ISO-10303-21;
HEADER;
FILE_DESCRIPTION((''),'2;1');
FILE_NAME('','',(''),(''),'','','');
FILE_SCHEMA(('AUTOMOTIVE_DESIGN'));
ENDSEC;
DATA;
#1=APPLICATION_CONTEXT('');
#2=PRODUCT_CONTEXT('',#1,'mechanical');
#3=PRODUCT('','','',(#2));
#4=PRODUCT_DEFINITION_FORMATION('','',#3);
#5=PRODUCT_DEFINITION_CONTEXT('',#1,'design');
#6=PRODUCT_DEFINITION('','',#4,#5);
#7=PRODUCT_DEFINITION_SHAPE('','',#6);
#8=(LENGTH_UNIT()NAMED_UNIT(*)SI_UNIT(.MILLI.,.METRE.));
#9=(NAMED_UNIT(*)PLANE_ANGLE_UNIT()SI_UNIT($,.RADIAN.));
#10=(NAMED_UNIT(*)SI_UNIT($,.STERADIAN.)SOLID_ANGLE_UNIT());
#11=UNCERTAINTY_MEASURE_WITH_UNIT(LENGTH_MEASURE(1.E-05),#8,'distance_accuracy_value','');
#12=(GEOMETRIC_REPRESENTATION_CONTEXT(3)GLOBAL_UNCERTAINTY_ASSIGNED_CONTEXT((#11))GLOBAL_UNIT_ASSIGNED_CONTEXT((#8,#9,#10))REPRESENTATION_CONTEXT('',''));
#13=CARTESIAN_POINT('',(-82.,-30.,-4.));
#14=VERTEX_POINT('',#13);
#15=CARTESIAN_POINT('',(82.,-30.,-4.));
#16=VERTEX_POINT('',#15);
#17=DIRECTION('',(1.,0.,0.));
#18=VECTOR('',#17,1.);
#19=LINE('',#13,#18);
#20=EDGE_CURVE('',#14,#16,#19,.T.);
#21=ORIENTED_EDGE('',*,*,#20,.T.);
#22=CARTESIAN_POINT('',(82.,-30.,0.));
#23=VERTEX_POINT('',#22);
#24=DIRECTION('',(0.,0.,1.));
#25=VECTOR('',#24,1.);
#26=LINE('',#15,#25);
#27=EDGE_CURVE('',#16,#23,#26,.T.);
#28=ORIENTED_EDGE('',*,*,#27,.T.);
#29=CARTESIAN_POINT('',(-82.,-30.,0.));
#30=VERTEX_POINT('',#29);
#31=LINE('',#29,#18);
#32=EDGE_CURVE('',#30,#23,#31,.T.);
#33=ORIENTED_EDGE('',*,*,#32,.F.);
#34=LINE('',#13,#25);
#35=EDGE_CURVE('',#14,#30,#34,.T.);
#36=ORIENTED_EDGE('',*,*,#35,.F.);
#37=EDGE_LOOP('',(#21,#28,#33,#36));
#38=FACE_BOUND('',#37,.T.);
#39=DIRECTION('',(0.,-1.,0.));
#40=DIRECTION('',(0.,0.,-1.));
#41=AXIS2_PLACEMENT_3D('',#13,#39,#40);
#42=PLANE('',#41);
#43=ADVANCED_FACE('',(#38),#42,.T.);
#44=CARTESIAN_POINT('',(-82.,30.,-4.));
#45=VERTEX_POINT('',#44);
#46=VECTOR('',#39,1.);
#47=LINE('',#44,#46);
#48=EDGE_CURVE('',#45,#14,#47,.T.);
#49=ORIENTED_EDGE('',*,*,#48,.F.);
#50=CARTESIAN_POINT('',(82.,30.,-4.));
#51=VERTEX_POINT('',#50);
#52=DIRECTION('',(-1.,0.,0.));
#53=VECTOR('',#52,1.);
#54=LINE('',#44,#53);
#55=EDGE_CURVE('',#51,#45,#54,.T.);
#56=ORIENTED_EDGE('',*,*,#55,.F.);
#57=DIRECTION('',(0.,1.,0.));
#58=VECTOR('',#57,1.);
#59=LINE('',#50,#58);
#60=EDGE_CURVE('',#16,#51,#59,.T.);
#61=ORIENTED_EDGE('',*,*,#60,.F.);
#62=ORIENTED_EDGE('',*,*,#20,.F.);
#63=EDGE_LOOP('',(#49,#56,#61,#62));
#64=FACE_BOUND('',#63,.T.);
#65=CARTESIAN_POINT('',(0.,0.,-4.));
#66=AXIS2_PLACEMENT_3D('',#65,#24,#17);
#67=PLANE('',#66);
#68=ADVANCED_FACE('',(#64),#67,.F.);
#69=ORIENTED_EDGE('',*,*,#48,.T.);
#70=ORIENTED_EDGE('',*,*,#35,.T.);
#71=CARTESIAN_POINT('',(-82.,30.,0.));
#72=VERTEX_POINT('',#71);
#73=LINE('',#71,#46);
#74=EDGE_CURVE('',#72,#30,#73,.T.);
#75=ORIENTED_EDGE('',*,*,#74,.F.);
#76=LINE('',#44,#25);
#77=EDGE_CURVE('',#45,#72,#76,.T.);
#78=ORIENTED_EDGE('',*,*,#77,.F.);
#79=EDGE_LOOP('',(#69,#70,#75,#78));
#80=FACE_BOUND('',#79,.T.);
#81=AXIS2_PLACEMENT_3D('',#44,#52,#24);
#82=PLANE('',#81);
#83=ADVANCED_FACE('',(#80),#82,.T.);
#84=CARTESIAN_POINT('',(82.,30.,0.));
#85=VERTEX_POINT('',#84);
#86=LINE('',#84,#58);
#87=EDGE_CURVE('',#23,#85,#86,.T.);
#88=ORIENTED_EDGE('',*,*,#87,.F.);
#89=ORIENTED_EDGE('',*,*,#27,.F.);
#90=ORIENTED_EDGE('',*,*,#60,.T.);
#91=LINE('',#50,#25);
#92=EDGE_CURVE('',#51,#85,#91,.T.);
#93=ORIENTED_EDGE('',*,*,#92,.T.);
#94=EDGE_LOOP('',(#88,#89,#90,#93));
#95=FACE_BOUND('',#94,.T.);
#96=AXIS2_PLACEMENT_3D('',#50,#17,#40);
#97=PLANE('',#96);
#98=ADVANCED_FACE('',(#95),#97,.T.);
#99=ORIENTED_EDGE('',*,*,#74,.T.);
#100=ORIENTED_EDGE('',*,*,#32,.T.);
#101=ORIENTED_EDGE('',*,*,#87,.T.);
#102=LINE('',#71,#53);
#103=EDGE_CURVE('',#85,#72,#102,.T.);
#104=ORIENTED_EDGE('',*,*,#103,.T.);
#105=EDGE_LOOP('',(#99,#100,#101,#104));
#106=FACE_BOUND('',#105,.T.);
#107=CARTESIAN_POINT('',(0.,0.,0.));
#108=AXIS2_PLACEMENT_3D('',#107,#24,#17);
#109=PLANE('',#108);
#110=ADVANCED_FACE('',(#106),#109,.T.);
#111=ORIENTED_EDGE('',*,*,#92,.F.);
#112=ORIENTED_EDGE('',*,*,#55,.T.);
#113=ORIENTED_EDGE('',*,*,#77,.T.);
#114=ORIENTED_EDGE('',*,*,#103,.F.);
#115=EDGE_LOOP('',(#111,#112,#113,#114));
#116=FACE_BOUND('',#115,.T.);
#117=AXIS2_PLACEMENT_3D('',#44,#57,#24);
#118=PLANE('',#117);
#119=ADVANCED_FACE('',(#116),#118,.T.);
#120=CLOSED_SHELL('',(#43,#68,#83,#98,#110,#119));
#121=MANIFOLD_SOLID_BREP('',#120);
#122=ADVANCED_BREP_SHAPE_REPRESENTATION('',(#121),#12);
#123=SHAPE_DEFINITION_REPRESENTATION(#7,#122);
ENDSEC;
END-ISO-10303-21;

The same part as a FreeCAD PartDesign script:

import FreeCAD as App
import Part
import Sketcher
from FreeCAD import Vector
Q = App.Units.Quantity

doc = App.newDocument("Part")
body = doc.addObject("PartDesign::Body", "Body")

# Sketch on XY plane
sketch1 = body.newObject("Sketcher::SketchObject", "Sketch")
sketch1.AttachmentSupport = (doc.getObject("XY_Plane"), [""])
sketch1.MapMode = "FlatFace"
sketch1.addGeometry(Part.LineSegment(Vector(-82, 30, 0), Vector(-82, -30, 0)), False)
sketch1.addGeometry(Part.LineSegment(Vector(-82, -30, 0), Vector(82, -30, 0)), False)
sketch1.addGeometry(Part.LineSegment(Vector(82, -30, 0), Vector(82, 30, 0)), False)
sketch1.addGeometry(Part.LineSegment(Vector(82, 30, 0), Vector(-82, 30, 0)), False)
sketch1.addConstraint(Sketcher.Constraint("Coincident", 0, 2, 1, 1))
sketch1.addConstraint(Sketcher.Constraint("Coincident", 1, 2, 2, 1))
sketch1.addConstraint(Sketcher.Constraint("Coincident", 2, 2, 3, 1))
sketch1.addConstraint(Sketcher.Constraint("Coincident", 3, 2, 0, 1))
sketch1.addConstraint(Sketcher.Constraint("Vertical", 0))
sketch1.addConstraint(Sketcher.Constraint("Horizontal", 1))
sketch1.addConstraint(Sketcher.Constraint("Vertical", 2))
sketch1.addConstraint(Sketcher.Constraint("Horizontal", 3))
sketch1.addConstraint(Sketcher.Constraint("Symmetric", 0, 2, 2, 2, -1, 1))
sketch1.addConstraint(Sketcher.Constraint("DistanceX", 1, 1, 1, 2, Q("164 mm")))
sketch1.addConstraint(Sketcher.Constraint("DistanceY", 0, 2, 0, 1, Q("60 mm")))
pad1 = body.newObject("PartDesign::Pad", "Pad")
pad1.Profile = sketch1
pad1.Length = 4
pad1.Reversed = True

doc.recompute()
